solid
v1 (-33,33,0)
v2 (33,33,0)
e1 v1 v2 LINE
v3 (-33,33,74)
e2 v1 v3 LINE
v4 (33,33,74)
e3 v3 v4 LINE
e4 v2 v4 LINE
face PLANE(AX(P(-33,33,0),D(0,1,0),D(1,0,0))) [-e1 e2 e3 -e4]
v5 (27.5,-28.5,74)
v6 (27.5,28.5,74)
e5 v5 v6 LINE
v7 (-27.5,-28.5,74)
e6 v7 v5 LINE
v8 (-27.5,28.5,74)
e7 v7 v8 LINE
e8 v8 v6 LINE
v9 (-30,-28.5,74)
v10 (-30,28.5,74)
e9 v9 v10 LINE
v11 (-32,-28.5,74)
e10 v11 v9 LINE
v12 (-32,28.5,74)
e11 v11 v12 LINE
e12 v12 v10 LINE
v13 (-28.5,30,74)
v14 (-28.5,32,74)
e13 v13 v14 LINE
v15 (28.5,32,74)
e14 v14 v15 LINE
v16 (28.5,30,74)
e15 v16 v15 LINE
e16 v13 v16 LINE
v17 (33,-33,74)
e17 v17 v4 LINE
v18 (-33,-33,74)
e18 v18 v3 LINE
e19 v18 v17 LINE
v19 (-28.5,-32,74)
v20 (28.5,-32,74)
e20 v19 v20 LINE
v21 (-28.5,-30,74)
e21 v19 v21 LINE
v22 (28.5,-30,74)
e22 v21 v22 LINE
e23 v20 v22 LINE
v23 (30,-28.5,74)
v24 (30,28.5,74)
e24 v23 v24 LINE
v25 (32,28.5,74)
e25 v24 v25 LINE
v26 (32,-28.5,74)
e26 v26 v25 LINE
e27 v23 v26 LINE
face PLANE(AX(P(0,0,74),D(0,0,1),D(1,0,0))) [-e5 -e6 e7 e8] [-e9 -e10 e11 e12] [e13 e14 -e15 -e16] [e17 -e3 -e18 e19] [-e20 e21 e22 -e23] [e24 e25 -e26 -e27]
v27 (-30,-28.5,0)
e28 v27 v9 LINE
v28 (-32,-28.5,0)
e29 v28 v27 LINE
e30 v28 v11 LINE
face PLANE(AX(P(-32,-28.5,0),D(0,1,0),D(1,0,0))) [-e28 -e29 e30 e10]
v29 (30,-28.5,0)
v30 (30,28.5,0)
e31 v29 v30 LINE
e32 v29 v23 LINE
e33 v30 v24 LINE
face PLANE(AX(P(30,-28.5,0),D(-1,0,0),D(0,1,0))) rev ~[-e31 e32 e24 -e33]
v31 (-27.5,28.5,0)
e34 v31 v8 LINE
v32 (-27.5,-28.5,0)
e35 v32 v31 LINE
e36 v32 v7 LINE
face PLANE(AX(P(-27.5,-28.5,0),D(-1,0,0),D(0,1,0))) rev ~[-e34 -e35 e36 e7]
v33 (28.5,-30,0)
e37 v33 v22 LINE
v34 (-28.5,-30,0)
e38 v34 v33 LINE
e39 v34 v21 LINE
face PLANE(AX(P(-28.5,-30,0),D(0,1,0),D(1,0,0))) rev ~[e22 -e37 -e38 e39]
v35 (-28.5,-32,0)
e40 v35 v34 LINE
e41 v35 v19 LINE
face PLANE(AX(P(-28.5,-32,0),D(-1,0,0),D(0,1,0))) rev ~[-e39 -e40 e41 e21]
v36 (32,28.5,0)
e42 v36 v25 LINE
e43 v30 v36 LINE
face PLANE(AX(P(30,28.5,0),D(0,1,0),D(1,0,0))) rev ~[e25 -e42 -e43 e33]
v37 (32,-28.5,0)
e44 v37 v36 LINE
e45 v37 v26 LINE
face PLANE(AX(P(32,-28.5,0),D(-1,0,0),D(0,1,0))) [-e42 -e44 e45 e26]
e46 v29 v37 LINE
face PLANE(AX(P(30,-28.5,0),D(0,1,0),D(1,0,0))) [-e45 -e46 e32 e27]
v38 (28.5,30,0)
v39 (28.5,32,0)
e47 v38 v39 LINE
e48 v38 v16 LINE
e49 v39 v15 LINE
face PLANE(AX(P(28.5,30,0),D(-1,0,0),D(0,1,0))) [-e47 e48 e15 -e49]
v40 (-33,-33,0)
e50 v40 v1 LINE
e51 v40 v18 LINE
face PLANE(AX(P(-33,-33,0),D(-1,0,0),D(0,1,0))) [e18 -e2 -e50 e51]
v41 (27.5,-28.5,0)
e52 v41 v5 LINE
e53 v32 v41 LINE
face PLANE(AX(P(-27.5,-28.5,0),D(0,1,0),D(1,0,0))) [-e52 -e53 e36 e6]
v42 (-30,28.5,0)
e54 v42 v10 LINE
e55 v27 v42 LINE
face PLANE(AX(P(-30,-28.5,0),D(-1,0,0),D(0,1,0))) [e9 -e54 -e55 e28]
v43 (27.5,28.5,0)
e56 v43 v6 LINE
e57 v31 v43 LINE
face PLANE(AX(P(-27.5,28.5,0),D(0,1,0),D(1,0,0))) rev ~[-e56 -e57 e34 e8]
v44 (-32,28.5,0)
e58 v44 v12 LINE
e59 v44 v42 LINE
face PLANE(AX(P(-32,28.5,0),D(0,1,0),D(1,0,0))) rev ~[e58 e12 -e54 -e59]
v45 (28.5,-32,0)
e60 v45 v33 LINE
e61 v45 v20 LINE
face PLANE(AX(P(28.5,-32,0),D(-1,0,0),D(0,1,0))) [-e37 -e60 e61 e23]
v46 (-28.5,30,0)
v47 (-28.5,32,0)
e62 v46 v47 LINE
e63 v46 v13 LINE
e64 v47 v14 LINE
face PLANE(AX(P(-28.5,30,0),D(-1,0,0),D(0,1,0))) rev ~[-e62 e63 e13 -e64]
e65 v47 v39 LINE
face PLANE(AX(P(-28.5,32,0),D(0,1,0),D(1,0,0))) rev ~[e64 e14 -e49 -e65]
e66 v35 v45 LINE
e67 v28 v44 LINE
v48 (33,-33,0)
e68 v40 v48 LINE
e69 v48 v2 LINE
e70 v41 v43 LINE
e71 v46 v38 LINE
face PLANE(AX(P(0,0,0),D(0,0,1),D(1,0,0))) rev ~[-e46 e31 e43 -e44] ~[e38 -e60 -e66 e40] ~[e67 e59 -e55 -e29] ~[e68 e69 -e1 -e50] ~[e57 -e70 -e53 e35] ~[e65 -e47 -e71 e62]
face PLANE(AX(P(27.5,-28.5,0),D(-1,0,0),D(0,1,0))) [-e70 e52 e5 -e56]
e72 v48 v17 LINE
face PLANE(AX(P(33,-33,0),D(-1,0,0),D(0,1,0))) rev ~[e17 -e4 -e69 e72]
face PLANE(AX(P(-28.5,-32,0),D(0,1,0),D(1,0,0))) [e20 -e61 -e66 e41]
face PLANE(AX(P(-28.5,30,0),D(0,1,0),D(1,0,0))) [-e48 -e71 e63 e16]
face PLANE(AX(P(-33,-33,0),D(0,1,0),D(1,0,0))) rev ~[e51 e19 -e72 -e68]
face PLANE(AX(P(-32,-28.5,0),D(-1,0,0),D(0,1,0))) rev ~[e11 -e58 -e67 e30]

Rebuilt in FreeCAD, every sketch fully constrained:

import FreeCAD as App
import Part
import Sketcher
from FreeCAD import Vector


def add_polygon(sketch, points):
    """Adds a closed chain of lines whose ends are joined by coincident constraints."""
    first, n = sketch.GeometryCount, len(points)
    for a, b in zip(points, points[1:] + points[:1]):
        sketch.addGeometry(Part.LineSegment(App.Vector(*a, 0), App.Vector(*b, 0)), False)
    for i in range(n):
        sketch.addConstraint(Sketcher.Constraint("Coincident", first + i, 2, first + (i + 1) % n, 1))

doc = App.newDocument("Part")
body = doc.addObject("PartDesign::Body", "Body")

sketch1 = body.newObject("Sketcher::SketchObject", "Sketch")
sketch1.AttachmentSupport = (doc.getObject("XY_Plane"), [""])
sketch1.MapMode = "FlatFace"
add_polygon(sketch1, [(-33, 33), (-33, -33), (33, -33), (33, 33)])
add_polygon(sketch1, [(28.5, -32), (-28.5, -32), (-28.5, -30), (28.5, -30)])
add_polygon(sketch1, [(-30, -28.5), (-32, -28.5), (-32, 28.5), (-30, 28.5)])
add_polygon(sketch1, [(27.5, -28.5), (-27.5, -28.5), (-27.5, 28.5), (27.5, 28.5)])
add_polygon(sketch1, [(32, -28.5), (30, -28.5), (30, 28.5), (32, 28.5)])
add_polygon(sketch1, [(28.5, 30), (-28.5, 30), (-28.5, 32), (28.5, 32)])
sketch1.addConstraint([
    Sketcher.Constraint("Vertical", 0),
    Sketcher.Constraint("Horizontal", 1),
    Sketcher.Constraint("Vertical", 2),
    Sketcher.Constraint("Horizontal", 3),
    Sketcher.Constraint("Horizontal", 4),
    Sketcher.Constraint("Vertical", 5),
    Sketcher.Constraint("Horizontal", 6),
    Sketcher.Constraint("Vertical", 7),
    Sketcher.Constraint("Horizontal", 8),
    Sketcher.Constraint("Vertical", 9),
    Sketcher.Constraint("Horizontal", 10),
    Sketcher.Constraint("Vertical", 11),
    Sketcher.Constraint("Horizontal", 12),
    Sketcher.Constraint("Vertical", 13),
    Sketcher.Constraint("Horizontal", 14),
    Sketcher.Constraint("Vertical", 15),
    Sketcher.Constraint("Horizontal", 16),
    Sketcher.Constraint("Vertical", 17),
    Sketcher.Constraint("Horizontal", 18),
    Sketcher.Constraint("Vertical", 19),
    Sketcher.Constraint("Horizontal", 20),
    Sketcher.Constraint("Vertical", 21),
    Sketcher.Constraint("Horizontal", 22),
    Sketcher.Constraint("Vertical", 23),
    Sketcher.Constraint("Symmetric", 0, 2, 2, 2, -1, 1),
    Sketcher.Constraint("Symmetric", 12, 2, 14, 2, -1, 1),
    Sketcher.Constraint("Symmetric", 10, 2, 16, 2, -1, 1),
    Sketcher.Constraint("Symmetric", 8, 2, 18, 2, -1, 1),
    Sketcher.Constraint("Symmetric", 6, 2, 20, 2, -1, 1),
    Sketcher.Constraint("Symmetric", 4, 2, 22, 2, -1, 1),
    Sketcher.Constraint("Horizontal", 11, 2, 12, 2),
    Sketcher.Constraint("Horizontal", 10, 2, 13, 2),
    Sketcher.Constraint("Vertical", 5, 2, 20, 2),
    Sketcher.Constraint("Equal", 3, 0),
    Sketcher.Constraint("Equal", 18, 5),
    Sketcher.Constraint("Equal", 22, 9),
    Sketcher.Constraint("DistanceX", 1, 1, 1, 2, 66.0),
    Sketcher.Constraint("DistanceX", 4, 2, 4, 1, 57.0),
    Sketcher.Constraint("DistanceX", 8, 2, 8, 1, 2.0),
    Sketcher.Constraint("DistanceX", 12, 2, 12, 1, 55.0),
    Sketcher.Constraint("DistanceY", 4, 2, -1, 1, 32.0),
    Sketcher.Constraint("DistanceX", 8, 2, -1, 1, 32.0),
])
pad1 = body.newObject("PartDesign::Pad", "Pad")
pad1.Profile = sketch1
pad1.Length = 74

doc.recompute()
